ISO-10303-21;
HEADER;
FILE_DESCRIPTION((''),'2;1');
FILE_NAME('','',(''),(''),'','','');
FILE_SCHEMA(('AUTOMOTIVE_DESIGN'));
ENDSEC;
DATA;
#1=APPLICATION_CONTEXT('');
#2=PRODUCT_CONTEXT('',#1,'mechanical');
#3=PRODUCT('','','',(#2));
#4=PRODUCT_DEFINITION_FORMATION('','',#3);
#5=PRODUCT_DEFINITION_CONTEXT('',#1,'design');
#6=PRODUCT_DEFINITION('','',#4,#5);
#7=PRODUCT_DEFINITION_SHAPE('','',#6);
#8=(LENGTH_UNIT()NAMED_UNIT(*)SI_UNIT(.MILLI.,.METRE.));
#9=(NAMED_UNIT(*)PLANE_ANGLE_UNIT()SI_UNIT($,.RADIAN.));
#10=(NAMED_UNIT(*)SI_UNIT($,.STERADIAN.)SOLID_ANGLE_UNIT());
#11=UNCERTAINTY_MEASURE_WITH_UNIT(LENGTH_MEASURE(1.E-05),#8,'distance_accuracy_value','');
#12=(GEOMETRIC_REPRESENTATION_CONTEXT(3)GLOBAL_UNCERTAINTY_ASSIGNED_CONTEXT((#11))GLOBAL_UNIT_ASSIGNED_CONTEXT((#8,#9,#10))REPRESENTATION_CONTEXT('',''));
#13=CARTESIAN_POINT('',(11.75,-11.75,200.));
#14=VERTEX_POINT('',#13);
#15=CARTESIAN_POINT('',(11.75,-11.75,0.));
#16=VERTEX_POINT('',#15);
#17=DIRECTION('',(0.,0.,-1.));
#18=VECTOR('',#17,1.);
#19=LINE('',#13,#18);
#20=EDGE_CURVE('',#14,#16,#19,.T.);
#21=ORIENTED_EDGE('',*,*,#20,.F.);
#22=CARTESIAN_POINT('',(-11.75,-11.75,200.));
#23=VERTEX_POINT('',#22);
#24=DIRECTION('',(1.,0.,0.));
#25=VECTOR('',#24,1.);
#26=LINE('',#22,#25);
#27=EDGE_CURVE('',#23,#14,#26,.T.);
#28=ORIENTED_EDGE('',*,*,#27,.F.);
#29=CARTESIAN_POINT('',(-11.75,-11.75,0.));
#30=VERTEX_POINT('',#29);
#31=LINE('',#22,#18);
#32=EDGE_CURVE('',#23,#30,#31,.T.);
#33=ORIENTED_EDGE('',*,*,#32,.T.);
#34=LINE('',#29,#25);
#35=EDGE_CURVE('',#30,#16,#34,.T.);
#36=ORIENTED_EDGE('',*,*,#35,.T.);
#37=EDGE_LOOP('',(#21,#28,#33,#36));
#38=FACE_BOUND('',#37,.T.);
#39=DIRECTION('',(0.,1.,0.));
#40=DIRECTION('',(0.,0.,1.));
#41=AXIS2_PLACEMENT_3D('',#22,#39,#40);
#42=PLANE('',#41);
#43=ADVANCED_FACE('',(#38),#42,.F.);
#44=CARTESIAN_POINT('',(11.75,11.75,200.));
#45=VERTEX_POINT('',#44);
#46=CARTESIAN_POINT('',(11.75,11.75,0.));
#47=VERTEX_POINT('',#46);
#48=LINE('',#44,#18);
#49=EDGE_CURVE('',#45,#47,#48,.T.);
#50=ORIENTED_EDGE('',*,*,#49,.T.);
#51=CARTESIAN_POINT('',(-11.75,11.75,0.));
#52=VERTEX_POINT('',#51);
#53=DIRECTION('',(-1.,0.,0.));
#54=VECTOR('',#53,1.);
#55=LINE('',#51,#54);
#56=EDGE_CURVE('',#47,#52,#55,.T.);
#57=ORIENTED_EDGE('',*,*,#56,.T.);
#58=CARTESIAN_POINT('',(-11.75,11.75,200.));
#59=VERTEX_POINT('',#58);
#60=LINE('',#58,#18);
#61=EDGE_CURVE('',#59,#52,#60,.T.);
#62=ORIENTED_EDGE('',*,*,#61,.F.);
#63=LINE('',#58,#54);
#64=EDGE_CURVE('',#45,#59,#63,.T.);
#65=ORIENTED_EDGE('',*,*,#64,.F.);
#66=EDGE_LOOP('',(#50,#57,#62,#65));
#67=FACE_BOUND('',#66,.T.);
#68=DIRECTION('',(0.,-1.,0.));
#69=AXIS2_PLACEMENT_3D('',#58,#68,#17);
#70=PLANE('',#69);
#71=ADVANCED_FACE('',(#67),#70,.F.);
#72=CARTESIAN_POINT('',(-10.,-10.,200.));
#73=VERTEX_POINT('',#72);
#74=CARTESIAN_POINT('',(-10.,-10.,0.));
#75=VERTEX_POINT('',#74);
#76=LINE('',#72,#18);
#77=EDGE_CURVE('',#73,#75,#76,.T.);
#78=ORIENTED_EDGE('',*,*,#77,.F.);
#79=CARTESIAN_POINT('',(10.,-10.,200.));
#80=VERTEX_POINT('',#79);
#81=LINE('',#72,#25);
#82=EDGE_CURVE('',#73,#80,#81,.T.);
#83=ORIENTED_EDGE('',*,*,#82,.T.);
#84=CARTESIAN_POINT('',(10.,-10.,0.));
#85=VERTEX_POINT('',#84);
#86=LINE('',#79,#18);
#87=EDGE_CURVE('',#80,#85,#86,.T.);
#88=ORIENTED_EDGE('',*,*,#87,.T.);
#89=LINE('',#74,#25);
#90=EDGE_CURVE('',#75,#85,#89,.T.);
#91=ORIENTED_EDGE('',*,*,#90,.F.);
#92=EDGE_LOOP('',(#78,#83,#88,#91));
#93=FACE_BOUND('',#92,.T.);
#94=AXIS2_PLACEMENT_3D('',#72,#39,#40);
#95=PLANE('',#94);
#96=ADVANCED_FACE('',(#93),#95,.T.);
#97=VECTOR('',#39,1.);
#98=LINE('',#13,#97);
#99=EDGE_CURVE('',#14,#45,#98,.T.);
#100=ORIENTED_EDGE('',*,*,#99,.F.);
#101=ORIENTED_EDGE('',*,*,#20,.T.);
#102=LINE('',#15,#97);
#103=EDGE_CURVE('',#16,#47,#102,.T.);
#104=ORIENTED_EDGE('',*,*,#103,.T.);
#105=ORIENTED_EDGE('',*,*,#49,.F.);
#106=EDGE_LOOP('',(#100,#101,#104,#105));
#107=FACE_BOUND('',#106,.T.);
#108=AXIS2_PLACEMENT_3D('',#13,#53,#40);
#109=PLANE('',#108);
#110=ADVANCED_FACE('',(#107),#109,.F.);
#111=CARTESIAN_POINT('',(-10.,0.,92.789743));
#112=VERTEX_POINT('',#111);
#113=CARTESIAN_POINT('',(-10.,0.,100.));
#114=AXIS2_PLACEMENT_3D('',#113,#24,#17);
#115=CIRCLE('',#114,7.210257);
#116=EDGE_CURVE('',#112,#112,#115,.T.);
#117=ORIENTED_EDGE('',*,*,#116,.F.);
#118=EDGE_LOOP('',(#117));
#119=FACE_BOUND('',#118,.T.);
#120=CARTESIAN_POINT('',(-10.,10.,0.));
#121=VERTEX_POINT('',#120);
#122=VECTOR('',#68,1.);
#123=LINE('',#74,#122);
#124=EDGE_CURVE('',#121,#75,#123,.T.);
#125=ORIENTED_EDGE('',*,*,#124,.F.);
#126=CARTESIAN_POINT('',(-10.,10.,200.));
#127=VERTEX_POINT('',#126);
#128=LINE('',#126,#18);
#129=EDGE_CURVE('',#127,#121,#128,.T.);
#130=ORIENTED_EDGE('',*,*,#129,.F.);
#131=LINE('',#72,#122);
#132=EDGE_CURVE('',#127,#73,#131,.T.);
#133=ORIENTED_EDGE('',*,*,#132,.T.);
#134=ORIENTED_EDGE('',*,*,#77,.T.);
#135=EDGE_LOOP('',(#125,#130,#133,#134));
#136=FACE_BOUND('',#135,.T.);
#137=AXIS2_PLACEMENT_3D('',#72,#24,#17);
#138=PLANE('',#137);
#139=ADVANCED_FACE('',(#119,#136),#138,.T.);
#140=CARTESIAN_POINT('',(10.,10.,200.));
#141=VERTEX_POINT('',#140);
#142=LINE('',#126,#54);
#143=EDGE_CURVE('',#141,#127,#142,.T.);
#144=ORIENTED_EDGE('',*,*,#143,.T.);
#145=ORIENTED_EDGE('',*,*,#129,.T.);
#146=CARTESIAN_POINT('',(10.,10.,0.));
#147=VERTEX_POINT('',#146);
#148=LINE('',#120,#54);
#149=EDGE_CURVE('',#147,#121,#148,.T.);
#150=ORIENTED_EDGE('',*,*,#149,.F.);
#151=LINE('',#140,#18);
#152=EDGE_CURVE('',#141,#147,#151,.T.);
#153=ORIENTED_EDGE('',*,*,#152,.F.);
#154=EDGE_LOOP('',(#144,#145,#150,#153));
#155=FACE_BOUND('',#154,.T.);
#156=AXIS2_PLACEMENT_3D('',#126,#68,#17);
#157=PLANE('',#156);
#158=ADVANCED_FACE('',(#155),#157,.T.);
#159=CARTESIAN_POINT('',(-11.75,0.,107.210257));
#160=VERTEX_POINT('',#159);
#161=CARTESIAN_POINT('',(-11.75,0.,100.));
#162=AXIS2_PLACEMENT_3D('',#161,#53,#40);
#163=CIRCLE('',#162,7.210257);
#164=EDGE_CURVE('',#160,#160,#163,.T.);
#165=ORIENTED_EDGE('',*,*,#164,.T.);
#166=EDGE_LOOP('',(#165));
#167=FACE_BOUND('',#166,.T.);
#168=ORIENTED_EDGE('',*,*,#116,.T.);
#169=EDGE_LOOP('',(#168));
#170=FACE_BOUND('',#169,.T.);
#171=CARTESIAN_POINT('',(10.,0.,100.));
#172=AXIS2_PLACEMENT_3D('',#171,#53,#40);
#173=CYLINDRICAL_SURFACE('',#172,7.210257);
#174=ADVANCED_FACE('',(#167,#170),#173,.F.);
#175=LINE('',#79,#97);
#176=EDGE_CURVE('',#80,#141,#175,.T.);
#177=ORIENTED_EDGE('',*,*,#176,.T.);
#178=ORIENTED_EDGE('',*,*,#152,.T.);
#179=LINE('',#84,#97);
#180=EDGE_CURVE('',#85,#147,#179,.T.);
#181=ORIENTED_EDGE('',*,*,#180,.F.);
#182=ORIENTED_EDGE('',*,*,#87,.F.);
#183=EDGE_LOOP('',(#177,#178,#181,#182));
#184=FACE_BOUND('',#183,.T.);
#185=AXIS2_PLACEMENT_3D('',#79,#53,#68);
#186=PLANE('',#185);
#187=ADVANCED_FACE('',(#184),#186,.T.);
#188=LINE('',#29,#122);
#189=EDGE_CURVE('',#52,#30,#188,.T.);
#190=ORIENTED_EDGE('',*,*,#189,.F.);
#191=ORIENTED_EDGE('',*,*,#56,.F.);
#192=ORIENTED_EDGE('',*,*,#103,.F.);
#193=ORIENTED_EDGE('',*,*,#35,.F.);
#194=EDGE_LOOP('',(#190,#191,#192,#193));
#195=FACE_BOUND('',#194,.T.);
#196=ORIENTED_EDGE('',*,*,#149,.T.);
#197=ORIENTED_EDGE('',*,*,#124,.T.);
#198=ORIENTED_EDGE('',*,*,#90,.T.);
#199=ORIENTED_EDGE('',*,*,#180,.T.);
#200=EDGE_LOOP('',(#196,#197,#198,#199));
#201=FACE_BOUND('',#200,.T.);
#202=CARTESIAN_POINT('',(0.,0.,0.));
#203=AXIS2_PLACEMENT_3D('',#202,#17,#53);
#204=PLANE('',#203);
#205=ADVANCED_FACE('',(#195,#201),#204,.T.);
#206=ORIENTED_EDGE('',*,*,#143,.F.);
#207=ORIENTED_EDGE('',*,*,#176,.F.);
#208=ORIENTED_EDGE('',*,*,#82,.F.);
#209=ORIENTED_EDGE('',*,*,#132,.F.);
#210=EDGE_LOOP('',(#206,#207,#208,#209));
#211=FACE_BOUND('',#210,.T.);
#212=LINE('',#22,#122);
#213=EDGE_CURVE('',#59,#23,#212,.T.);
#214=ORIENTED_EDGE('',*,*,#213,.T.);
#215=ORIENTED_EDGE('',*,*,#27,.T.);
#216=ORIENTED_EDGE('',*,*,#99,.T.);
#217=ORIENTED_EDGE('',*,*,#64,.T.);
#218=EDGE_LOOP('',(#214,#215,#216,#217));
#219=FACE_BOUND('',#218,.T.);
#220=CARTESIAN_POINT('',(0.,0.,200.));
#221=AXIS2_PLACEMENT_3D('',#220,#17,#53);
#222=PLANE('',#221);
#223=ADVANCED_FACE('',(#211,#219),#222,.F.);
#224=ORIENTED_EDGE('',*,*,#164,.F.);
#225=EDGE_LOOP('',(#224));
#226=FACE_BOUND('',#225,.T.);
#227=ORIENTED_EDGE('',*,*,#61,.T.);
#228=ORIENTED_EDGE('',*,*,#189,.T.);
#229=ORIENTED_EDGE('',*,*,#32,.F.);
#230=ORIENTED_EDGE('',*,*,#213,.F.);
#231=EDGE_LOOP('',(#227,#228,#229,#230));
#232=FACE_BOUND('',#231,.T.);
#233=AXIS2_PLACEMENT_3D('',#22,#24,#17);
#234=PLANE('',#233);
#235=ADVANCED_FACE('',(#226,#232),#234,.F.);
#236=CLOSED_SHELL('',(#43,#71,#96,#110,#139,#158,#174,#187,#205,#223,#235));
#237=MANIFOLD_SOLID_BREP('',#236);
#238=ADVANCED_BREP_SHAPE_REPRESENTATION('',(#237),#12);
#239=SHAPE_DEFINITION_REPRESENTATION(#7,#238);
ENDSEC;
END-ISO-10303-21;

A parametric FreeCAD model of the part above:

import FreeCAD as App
import Part
import Sketcher
Q = App.Units.Quantity


def add_polygon(sketch, points):
    """Adds a closed chain of lines whose ends are joined by coincident constraints."""
    first, n = sketch.GeometryCount, len(points)
    for a, b in zip(points, points[1:] + points[:1]):
        sketch.addGeometry(Part.LineSegment(App.Vector(*a, 0), App.Vector(*b, 0)), False)
    for i in range(n):
        sketch.addConstraint(Sketcher.Constraint("Coincident", first + i, 2, first + (i + 1) % n, 1))

doc = App.newDocument("Part")
body = doc.addObject("PartDesign::Body", "Body")

sketch1 = body.newObject("Sketcher::SketchObject", "Sketch")
sketch1.AttachmentSupport = (doc.getObject("XY_Plane"), [""])
sketch1.MapMode = "FlatFace"
add_polygon(sketch1, [(-12, 12), (-12, -12), (12, -12), (12, 12)])
add_polygon(sketch1, [(10, -10), (-10, -10), (-10, 10), (10, 10)])
sketch1.addConstraint(Sketcher.Constraint("Vertical", 0))
sketch1.addConstraint(Sketcher.Constraint("Horizontal", 1))
sketch1.addConstraint(Sketcher.Constraint("Vertical", 2))
sketch1.addConstraint(Sketcher.Constraint("Horizontal", 3))
sketch1.addConstraint(Sketcher.Constraint("Horizontal", 4))
sketch1.addConstraint(Sketcher.Constraint("Vertical", 5))
sketch1.addConstraint(Sketcher.Constraint("Horizontal", 6))
sketch1.addConstraint(Sketcher.Constraint("Vertical", 7))
sketch1.addConstraint(Sketcher.Constraint("Symmetric", 0, 2, 2, 2, -1, 1))
sketch1.addConstraint(Sketcher.Constraint("Symmetric", 4, 2, 6, 2, -1, 1))
sketch1.addConstraint(Sketcher.Constraint("Equal", 3, 0))
sketch1.addConstraint(Sketcher.Constraint("Equal", 6, 5))
sketch1.addConstraint(Sketcher.Constraint("DistanceX", 4, 2, 4, 1, Q("20 mm")))
sketch1.addConstraint(Sketcher.Constraint("DistanceX", 1, 1, 1, 2, Q("23.5 mm")))
pad1 = body.newObject("PartDesign::Pad", "Pad")
pad1.Profile = sketch1
pad1.Length = 200

sketch2 = body.newObject("Sketcher::SketchObject", "Sketch001")
sketch2.AttachmentSupport = (doc.getObject("YZ_Plane"), [""])
sketch2.MapMode = "FlatFace"
sketch2.AttachmentOffset = App.Placement(App.Vector(0, 0, -11.75), App.Rotation())
sketch2.addGeometry(Part.Circle(App.Vector(0, 100, 0), App.Vector(0, 0, 1), 7), False)
sketch2.addConstraint(Sketcher.Constraint("PointOnObject", 0, 3, -2))
sketch2.addConstraint(Sketcher.Constraint("DistanceY", -1, 1, 0, 3, Q("100 mm")))
sketch2.addConstraint(Sketcher.Constraint("Diameter", 0, Q("14.420514 mm")))
pocket1 = body.newObject("PartDesign::Pocket", "Pocket")
pocket1.Profile = sketch2
pocket1.Length = 1.75
pocket1.Reversed = True

doc.recompute()
